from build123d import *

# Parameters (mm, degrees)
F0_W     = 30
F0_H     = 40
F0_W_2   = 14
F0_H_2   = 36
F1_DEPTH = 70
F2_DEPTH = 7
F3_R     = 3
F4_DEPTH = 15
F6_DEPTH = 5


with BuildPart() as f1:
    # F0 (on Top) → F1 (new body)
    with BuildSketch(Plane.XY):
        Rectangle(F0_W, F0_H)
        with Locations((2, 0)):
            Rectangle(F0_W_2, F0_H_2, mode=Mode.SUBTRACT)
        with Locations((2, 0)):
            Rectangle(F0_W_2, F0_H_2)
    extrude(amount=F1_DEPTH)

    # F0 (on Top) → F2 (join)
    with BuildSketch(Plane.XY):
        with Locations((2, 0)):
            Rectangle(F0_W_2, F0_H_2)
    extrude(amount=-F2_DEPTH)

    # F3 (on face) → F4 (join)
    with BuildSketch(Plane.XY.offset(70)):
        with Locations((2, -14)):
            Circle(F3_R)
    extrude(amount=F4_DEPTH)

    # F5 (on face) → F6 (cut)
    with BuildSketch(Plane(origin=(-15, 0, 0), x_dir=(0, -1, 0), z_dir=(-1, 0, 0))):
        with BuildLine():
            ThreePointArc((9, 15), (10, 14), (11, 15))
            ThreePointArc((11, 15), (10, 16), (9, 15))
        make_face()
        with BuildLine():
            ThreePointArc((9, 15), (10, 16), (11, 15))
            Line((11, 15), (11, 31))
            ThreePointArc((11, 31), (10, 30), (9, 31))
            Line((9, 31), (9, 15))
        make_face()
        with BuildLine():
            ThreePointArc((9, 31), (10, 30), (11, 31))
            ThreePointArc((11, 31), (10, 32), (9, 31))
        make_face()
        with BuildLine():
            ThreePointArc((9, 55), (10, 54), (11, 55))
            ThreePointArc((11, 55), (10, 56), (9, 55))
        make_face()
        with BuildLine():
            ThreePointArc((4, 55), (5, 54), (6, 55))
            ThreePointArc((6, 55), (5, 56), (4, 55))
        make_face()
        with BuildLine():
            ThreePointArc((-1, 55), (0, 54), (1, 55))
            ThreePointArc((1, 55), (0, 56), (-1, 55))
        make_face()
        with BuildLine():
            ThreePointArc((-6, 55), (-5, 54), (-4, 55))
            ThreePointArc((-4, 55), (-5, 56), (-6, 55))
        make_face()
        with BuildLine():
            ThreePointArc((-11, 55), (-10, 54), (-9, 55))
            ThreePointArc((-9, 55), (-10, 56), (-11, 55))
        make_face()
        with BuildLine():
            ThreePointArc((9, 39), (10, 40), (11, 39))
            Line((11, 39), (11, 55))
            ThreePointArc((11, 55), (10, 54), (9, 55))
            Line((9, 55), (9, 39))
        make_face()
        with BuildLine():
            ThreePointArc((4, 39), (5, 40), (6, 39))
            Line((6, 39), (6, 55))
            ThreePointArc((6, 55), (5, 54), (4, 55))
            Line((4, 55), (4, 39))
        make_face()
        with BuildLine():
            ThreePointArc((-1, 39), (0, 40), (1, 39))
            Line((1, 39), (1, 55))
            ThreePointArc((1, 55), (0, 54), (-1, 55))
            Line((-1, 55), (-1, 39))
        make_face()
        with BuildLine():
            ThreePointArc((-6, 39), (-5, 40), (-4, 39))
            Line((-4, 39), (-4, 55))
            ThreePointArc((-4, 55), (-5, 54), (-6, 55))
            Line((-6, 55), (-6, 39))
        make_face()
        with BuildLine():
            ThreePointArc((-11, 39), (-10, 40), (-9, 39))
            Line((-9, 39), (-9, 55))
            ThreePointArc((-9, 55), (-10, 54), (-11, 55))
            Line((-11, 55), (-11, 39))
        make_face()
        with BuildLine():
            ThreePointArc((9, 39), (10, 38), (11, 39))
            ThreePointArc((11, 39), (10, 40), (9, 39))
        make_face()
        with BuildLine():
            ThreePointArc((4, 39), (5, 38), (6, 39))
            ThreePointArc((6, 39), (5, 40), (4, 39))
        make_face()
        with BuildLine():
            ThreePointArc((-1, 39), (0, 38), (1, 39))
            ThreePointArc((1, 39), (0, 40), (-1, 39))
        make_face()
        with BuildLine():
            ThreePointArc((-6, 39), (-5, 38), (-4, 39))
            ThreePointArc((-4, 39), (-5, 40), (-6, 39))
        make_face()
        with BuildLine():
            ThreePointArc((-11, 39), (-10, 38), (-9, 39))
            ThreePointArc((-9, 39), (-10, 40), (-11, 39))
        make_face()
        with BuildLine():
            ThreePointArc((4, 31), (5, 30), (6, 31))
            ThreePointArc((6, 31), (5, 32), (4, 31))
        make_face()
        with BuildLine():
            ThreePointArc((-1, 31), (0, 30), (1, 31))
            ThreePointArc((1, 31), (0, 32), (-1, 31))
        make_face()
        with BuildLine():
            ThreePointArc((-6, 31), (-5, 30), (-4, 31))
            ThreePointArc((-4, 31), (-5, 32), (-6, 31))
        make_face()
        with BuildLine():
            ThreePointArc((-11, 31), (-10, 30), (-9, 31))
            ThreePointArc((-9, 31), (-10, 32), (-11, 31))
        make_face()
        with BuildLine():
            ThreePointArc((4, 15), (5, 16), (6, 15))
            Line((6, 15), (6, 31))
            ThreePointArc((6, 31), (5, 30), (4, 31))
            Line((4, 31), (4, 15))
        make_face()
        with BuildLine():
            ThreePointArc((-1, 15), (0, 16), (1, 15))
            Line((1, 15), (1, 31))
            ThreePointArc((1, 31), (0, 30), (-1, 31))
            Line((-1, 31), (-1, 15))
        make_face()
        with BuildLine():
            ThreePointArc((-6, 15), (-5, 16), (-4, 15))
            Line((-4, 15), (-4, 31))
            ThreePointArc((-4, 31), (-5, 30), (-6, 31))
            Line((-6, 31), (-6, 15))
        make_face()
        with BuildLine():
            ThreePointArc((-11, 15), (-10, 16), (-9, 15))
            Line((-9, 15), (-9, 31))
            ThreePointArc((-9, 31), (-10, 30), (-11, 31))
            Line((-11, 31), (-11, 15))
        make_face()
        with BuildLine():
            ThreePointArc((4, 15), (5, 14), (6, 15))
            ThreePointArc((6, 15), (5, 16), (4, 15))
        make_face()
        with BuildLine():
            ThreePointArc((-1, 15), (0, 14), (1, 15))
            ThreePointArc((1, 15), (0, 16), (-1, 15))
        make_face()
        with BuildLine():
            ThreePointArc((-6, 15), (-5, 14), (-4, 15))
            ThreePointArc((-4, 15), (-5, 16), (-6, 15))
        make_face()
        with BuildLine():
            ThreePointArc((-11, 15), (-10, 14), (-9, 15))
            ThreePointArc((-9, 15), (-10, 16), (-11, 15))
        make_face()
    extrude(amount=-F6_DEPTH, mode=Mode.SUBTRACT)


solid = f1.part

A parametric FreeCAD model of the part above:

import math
import FreeCAD as App
import Part
import Sketcher

doc = App.newDocument("Part")
body = doc.addObject("PartDesign::Body", "Body")

# Sketch on XY plane
sketch1 = doc.addObject("Sketcher::SketchObject", "Sketch")
body.addObject(sketch1)
sketch1.AttachmentSupport = (doc.XY_Plane, [""])
sketch1.MapMode = "FlatFace"
sketch1.addGeometry([
    Part.LineSegment(App.Vector(-15, 20, 0), App.Vector(-15, -20, 0)),
    Part.LineSegment(App.Vector(-15, -20, 0), App.Vector(15, -20, 0)),
    Part.LineSegment(App.Vector(15, -20, 0), App.Vector(15, 20, 0)),
    Part.LineSegment(App.Vector(15, 20, 0), App.Vector(-15, 20, 0)),
], False)
sketch1.addConstraint([
    Sketcher.Constraint("Coincident", 0, 2, 1, 1),
    Sketcher.Constraint("Coincident", 1, 2, 2, 1),
    Sketcher.Constraint("Coincident", 2, 2, 3, 1),
    Sketcher.Constraint("Coincident", 3, 2, 0, 1),
    Sketcher.Constraint("Vertical", 0),
    Sketcher.Constraint("Horizontal", 1),
    Sketcher.Constraint("Vertical", 2),
    Sketcher.Constraint("Horizontal", 3),
    Sketcher.Constraint("Symmetric", 0, 2, 2, 2, -1, 1),
    Sketcher.Constraint("DistanceX", 1, 1, 1, 2, 30.0),
    Sketcher.Constraint("DistanceY", 0, 2, 0, 1, 40.0),
])
pad1 = doc.addObject("PartDesign::Pad", "Pad")
body.addObject(pad1)
pad1.Profile = sketch1
pad1.Length = 70

# Sketch on XY plane
sketch2 = doc.addObject("Sketcher::SketchObject", "Sketch001")
body.addObject(sketch2)
sketch2.AttachmentSupport = (doc.XY_Plane, [""])
sketch2.MapMode = "FlatFace"
sketch2.addGeometry([
    Part.LineSegment(App.Vector(-5, 18, 0), App.Vector(-5, -18, 0)),
    Part.LineSegment(App.Vector(-5, -18, 0), App.Vector(9, -18, 0)),
    Part.LineSegment(App.Vector(9, -18, 0), App.Vector(9, 18, 0)),
    Part.LineSegment(App.Vector(9, 18, 0), App.Vector(-5, 18, 0)),
], False)
sketch2.addConstraint([
    Sketcher.Constraint("Coincident", 0, 2, 1, 1),
    Sketcher.Constraint("Coincident", 1, 2, 2, 1),
    Sketcher.Constraint("Coincident", 2, 2, 3, 1),
    Sketcher.Constraint("Coincident", 3, 2, 0, 1),
    Sketcher.Constraint("Vertical", 0),
    Sketcher.Constraint("Horizontal", 1),
    Sketcher.Constraint("Vertical", 2),
    Sketcher.Constraint("Horizontal", 3),
    Sketcher.Constraint("DistanceX", 1, 1, 1, 2, 14.0),
    Sketcher.Constraint("DistanceY", 0, 2, 0, 1, 36.0),
    Sketcher.Constraint("DistanceX", 0, 2, -1, 1, 5.0),
    Sketcher.Constraint("DistanceY", 0, 2, -1, 1, 18.0),
])
pad2 = doc.addObject("PartDesign::Pad", "Pad001")
body.addObject(pad2)
pad2.Profile = sketch2
pad2.Length = 7
pad2.Reversed = True

# Sketch on XY plane
sketch3 = doc.addObject("Sketcher::SketchObject", "Sketch002")
body.addObject(sketch3)
sketch3.AttachmentSupport = (doc.XY_Plane, [""])
sketch3.MapMode = "FlatFace"
sketch3.AttachmentOffset = App.Placement(App.Vector(0, 0, 70), App.Rotation())
sketch3.addGeometry(Part.Circle(App.Vector(2, -14, 0), App.Vector(0, 0, 1), 3), False)
sketch3.addConstraint([
    Sketcher.Constraint("Diameter", 0, 6.0),
    Sketcher.Constraint("DistanceX", -1, 1, 0, 3, 2.0),
    Sketcher.Constraint("DistanceY", 0, 3, -1, 1, 14.0),
])
pad3 = doc.addObject("PartDesign::Pad", "Pad002")
body.addObject(pad3)
pad3.Profile = sketch3
pad3.Length = 15

# Sketch on YZ plane
sketch4 = doc.addObject("Sketcher::SketchObject", "Sketch003")
body.addObject(sketch4)
sketch4.AttachmentSupport = (doc.YZ_Plane, [""])
sketch4.MapMode = "FlatFace"
sketch4.AttachmentOffset = App.Placement(App.Vector(0, 0, -15), App.Rotation())
sketch4.addGeometry([
    Part.ArcOfCircle(Part.Circle(App.Vector(-10, 15, 0), App.Vector(0, 0, 1), 1), math.radians(180), math.radians(360)),  # 0
    Part.LineSegment(App.Vector(-11, 15, 0), App.Vector(-11, 31, 0)),  # 1
    Part.ArcOfCircle(Part.Circle(App.Vector(-10, 31, 0), App.Vector(0, 0, 1), 1), math.radians(0), math.radians(180)),  # 2
    Part.LineSegment(App.Vector(-9, 31, 0), App.Vector(-9, 15, 0)),  # 3
    Part.ArcOfCircle(Part.Circle(App.Vector(-10, 55, 0), App.Vector(0, 0, 1), 1), math.radians(0), math.radians(180)),  # 4
    Part.LineSegment(App.Vector(-9, 55, 0), App.Vector(-9, 39, 0)),  # 5
    Part.ArcOfCircle(Part.Circle(App.Vector(-10, 39, 0), App.Vector(0, 0, 1), 1), math.radians(180), math.radians(360)),  # 6
    Part.LineSegment(App.Vector(-11, 39, 0), App.Vector(-11, 55, 0)),  # 7
    Part.ArcOfCircle(Part.Circle(App.Vector(-5, 55, 0), App.Vector(0, 0, 1), 1), math.radians(0), math.radians(180)),  # 8
    Part.LineSegment(App.Vector(-4, 55, 0), App.Vector(-4, 39, 0)),  # 9
    Part.ArcOfCircle(Part.Circle(App.Vector(-5, 39, 0), App.Vector(0, 0, 1), 1), math.radians(180), math.radians(360)),  # 10
    Part.LineSegment(App.Vector(-6, 39, 0), App.Vector(-6, 55, 0)),  # 11
    Part.ArcOfCircle(Part.Circle(App.Vector(0, 55, 0), App.Vector(0, 0, 1), 1), math.radians(0), math.radians(180)),  # 12
    Part.LineSegment(App.Vector(1, 55, 0), App.Vector(1, 39, 0)),  # 13
    Part.ArcOfCircle(Part.Circle(App.Vector(0, 39, 0), App.Vector(0, 0, 1), 1), math.radians(180), math.radians(360)),  # 14
    Part.LineSegment(App.Vector(-1, 39, 0), App.Vector(-1, 55, 0)),  # 15
    Part.ArcOfCircle(Part.Circle(App.Vector(5, 55, 0), App.Vector(0, 0, 1), 1), math.radians(0), math.radians(180)),  # 16
    Part.LineSegment(App.Vector(6, 55, 0), App.Vector(6, 39, 0)),  # 17
    Part.ArcOfCircle(Part.Circle(App.Vector(5, 39, 0), App.Vector(0, 0, 1), 1), math.radians(180), math.radians(360)),  # 18
    Part.LineSegment(App.Vector(4, 39, 0), App.Vector(4, 55, 0)),  # 19
    Part.ArcOfCircle(Part.Circle(App.Vector(10, 55, 0), App.Vector(0, 0, 1), 1), math.radians(0), math.radians(180)),  # 20
    Part.LineSegment(App.Vector(11, 55, 0), App.Vector(11, 39, 0)),  # 21
    Part.ArcOfCircle(Part.Circle(App.Vector(10, 39, 0), App.Vector(0, 0, 1), 1), math.radians(180), math.radians(360)),  # 22
    Part.LineSegment(App.Vector(9, 39, 0), App.Vector(9, 55, 0)),  # 23
    Part.ArcOfCircle(Part.Circle(App.Vector(-5, 31, 0), App.Vector(0, 0, 1), 1), math.radians(0), math.radians(180)),  # 24
    Part.LineSegment(App.Vector(-4, 31, 0), App.Vector(-4, 15, 0)),  # 25
    Part.ArcOfCircle(Part.Circle(App.Vector(-5, 15, 0), App.Vector(0, 0, 1), 1), math.radians(180), math.radians(360)),  # 26
    Part.LineSegment(App.Vector(-6, 15, 0), App.Vector(-6, 31, 0)),  # 27
    Part.ArcOfCircle(Part.Circle(App.Vector(0, 31, 0), App.Vector(0, 0, 1), 1), math.radians(0), math.radians(180)),  # 28
    Part.LineSegment(App.Vector(1, 31, 0), App.Vector(1, 15, 0)),  # 29
    Part.ArcOfCircle(Part.Circle(App.Vector(0, 15, 0), App.Vector(0, 0, 1), 1), math.radians(180), math.radians(360)),  # 30
    Part.LineSegment(App.Vector(-1, 15, 0), App.Vector(-1, 31, 0)),  # 31
    Part.ArcOfCircle(Part.Circle(App.Vector(5, 31, 0), App.Vector(0, 0, 1), 1), math.radians(0), math.radians(180)),  # 32
    Part.LineSegment(App.Vector(6, 31, 0), App.Vector(6, 15, 0)),  # 33
    Part.ArcOfCircle(Part.Circle(App.Vector(5, 15, 0), App.Vector(0, 0, 1), 1), math.radians(180), math.radians(360)),  # 34
    Part.LineSegment(App.Vector(4, 15, 0), App.Vector(4, 31, 0)),  # 35
    Part.ArcOfCircle(Part.Circle(App.Vector(10, 31, 0), App.Vector(0, 0, 1), 1), math.radians(0), math.radians(180)),  # 36
    Part.LineSegment(App.Vector(11, 31, 0), App.Vector(11, 15, 0)),  # 37
    Part.ArcOfCircle(Part.Circle(App.Vector(10, 15, 0), App.Vector(0, 0, 1), 1), math.radians(180), math.radians(360)),  # 38
    Part.LineSegment(App.Vector(9, 15, 0), App.Vector(9, 31, 0)),  # 39
], False)
sketch4.addConstraint([
    Sketcher.Constraint("Tangent", 0, 1, 1, 1),
    Sketcher.Constraint("Tangent", 1, 2, 2, 2),
    Sketcher.Constraint("Tangent", 2, 1, 3, 1),
    Sketcher.Constraint("Tangent", 3, 2, 0, 2),
    Sketcher.Constraint("Tangent", 4, 1, 5, 1),
    Sketcher.Constraint("Tangent", 5, 2, 6, 2),
    Sketcher.Constraint("Tangent", 6, 1, 7, 1),
    Sketcher.Constraint("Tangent", 7, 2, 4, 2),
    Sketcher.Constraint("Tangent", 8, 1, 9, 1),
    Sketcher.Constraint("Tangent", 9, 2, 10, 2),
    Sketcher.Constraint("Tangent", 10, 1, 11, 1),
    Sketcher.Constraint("Tangent", 11, 2, 8, 2),
    Sketcher.Constraint("Tangent", 12, 1, 13, 1),
    Sketcher.Constraint("Tangent", 13, 2, 14, 2),
    Sketcher.Constraint("Tangent", 14, 1, 15, 1),
    Sketcher.Constraint("Tangent", 15, 2, 12, 2),
    Sketcher.Constraint("Tangent", 16, 1, 17, 1),
    Sketcher.Constraint("Tangent", 17, 2, 18, 2),
    Sketcher.Constraint("Tangent", 18, 1, 19, 1),
    Sketcher.Constraint("Tangent", 19, 2, 16, 2),
    Sketcher.Constraint("Tangent", 20, 1, 21, 1),
    Sketcher.Constraint("Tangent", 21, 2, 22, 2),
    Sketcher.Constraint("Tangent", 22, 1, 23, 1),
    Sketcher.Constraint("Tangent", 23, 2, 20, 2),
    Sketcher.Constraint("Tangent", 24, 1, 25, 1),
    Sketcher.Constraint("Tangent", 25, 2, 26, 2),
    Sketcher.Constraint("Tangent", 26, 1, 27, 1),
    Sketcher.Constraint("Tangent", 27, 2, 24, 2),
    Sketcher.Constraint("Tangent", 28, 1, 29, 1),
    Sketcher.Constraint("Tangent", 29, 2, 30, 2),
    Sketcher.Constraint("Tangent", 30, 1, 31, 1),
    Sketcher.Constraint("Tangent", 31, 2, 28, 2),
    Sketcher.Constraint("Tangent", 32, 1, 33, 1),
    Sketcher.Constraint("Tangent", 33, 2, 34, 2),
    Sketcher.Constraint("Tangent", 34, 1, 35, 1),
    Sketcher.Constraint("Tangent", 35, 2, 32, 2),
    Sketcher.Constraint("Tangent", 36, 1, 37, 1),
    Sketcher.Constraint("Tangent", 37, 2, 38, 2),
    Sketcher.Constraint("Tangent", 38, 1, 39, 1),
    Sketcher.Constraint("Tangent", 39, 2, 36, 2),
    Sketcher.Constraint("Vertical", 1),
    Sketcher.Constraint("Vertical", 3),
    Sketcher.Constraint("Vertical", 5),
    Sketcher.Constraint("Vertical", 7),
    Sketcher.Constraint("Vertical", 9),
    Sketcher.Constraint("Vertical", 11),
    Sketcher.Constraint("Vertical", 13),
    Sketcher.Constraint("Vertical", 15),
    Sketcher.Constraint("Vertical", 17),
    Sketcher.Constraint("Vertical", 19),
    Sketcher.Constraint("Vertical", 21),
    Sketcher.Constraint("Vertical", 23),
    Sketcher.Constraint("Vertical", 25),
    Sketcher.Constraint("Vertical", 27),
    Sketcher.Constraint("Vertical", 29),
    Sketcher.Constraint("Vertical", 31),
    Sketcher.Constraint("Vertical", 33),
    Sketcher.Constraint("Vertical", 35),
    Sketcher.Constraint("Vertical", 37),
    Sketcher.Constraint("Vertical", 39),
    Sketcher.Constraint("Equal", 2, 4),
    Sketcher.Constraint("Equal", 6, 8),
    Sketcher.Constraint("Equal", 10, 12),
    Sketcher.Constraint("Equal", 14, 16),
    Sketcher.Constraint("Equal", 18, 20),
    Sketcher.Constraint("Equal", 22, 24),
    Sketcher.Constraint("Equal", 26, 28),
    Sketcher.Constraint("Equal", 30, 32),
    Sketcher.Constraint("Equal", 34, 36),
    Sketcher.Constraint("Symmetric", 8, 3, 16, 3, -2),
    Sketcher.Constraint("Symmetric", 4, 3, 20, 3, -2),
    Sketcher.Constraint("Symmetric", 24, 3, 32, 3, -2),
    Sketcher.Constraint("Symmetric", 2, 3, 36, 3, -2),
    Sketcher.Constraint("PointOnObject", 12, 3, -2),
    Sketcher.Constraint("PointOnObject", 28, 3, -2),
    Sketcher.Constraint("Horizontal", 4, 3, 8, 3),
    Sketcher.Constraint("Horizontal", 6, 3, 10, 3),
    Sketcher.Constraint("Horizontal", 8, 3, 12, 3),
    Sketcher.Constraint("Horizontal", 10, 3, 14, 3),
    Sketcher.Constraint("Horizontal", 14, 3, 18, 3),
    Sketcher.Constraint("Horizontal", 18, 3, 22, 3),
    Sketcher.Constraint("Horizontal", 2, 3, 24, 3),
    Sketcher.Constraint("Horizontal", 0, 3, 26, 3),
    Sketcher.Constraint("Horizontal", 24, 3, 28, 3),
    Sketcher.Constraint("Horizontal", 26, 3, 30, 3),
    Sketcher.Constraint("Horizontal", 30, 3, 34, 3),
    Sketcher.Constraint("Horizontal", 34, 3, 38, 3),
    Sketcher.Constraint("Vertical", 2, 3, 4, 3),
    Sketcher.Constraint("Vertical", 10, 3, 24, 3),
    Sketcher.Constraint("Equal", 3, 5),
    Sketcher.Constraint("Radius", 0, 1.0),
    Sketcher.Constraint("DistanceY", 1, 1, 1, 2, 16.0),
    Sketcher.Constraint("DistanceX", 0, 3, -1, 1, 10.0),
    Sketcher.Constraint("DistanceY", -1, 1, 0, 3, 15.0),
    Sketcher.Constraint("DistanceY", -1, 1, 4, 3, 55.0),
    Sketcher.Constraint("DistanceX", 8, 3, -1, 1, 5.0),
])
pocket1 = doc.addObject("PartDesign::Pocket", "Pocket")
body.addObject(pocket1)
pocket1.Profile = sketch4
pocket1.Length = 5
pocket1.Reversed = True

doc.recompute()
